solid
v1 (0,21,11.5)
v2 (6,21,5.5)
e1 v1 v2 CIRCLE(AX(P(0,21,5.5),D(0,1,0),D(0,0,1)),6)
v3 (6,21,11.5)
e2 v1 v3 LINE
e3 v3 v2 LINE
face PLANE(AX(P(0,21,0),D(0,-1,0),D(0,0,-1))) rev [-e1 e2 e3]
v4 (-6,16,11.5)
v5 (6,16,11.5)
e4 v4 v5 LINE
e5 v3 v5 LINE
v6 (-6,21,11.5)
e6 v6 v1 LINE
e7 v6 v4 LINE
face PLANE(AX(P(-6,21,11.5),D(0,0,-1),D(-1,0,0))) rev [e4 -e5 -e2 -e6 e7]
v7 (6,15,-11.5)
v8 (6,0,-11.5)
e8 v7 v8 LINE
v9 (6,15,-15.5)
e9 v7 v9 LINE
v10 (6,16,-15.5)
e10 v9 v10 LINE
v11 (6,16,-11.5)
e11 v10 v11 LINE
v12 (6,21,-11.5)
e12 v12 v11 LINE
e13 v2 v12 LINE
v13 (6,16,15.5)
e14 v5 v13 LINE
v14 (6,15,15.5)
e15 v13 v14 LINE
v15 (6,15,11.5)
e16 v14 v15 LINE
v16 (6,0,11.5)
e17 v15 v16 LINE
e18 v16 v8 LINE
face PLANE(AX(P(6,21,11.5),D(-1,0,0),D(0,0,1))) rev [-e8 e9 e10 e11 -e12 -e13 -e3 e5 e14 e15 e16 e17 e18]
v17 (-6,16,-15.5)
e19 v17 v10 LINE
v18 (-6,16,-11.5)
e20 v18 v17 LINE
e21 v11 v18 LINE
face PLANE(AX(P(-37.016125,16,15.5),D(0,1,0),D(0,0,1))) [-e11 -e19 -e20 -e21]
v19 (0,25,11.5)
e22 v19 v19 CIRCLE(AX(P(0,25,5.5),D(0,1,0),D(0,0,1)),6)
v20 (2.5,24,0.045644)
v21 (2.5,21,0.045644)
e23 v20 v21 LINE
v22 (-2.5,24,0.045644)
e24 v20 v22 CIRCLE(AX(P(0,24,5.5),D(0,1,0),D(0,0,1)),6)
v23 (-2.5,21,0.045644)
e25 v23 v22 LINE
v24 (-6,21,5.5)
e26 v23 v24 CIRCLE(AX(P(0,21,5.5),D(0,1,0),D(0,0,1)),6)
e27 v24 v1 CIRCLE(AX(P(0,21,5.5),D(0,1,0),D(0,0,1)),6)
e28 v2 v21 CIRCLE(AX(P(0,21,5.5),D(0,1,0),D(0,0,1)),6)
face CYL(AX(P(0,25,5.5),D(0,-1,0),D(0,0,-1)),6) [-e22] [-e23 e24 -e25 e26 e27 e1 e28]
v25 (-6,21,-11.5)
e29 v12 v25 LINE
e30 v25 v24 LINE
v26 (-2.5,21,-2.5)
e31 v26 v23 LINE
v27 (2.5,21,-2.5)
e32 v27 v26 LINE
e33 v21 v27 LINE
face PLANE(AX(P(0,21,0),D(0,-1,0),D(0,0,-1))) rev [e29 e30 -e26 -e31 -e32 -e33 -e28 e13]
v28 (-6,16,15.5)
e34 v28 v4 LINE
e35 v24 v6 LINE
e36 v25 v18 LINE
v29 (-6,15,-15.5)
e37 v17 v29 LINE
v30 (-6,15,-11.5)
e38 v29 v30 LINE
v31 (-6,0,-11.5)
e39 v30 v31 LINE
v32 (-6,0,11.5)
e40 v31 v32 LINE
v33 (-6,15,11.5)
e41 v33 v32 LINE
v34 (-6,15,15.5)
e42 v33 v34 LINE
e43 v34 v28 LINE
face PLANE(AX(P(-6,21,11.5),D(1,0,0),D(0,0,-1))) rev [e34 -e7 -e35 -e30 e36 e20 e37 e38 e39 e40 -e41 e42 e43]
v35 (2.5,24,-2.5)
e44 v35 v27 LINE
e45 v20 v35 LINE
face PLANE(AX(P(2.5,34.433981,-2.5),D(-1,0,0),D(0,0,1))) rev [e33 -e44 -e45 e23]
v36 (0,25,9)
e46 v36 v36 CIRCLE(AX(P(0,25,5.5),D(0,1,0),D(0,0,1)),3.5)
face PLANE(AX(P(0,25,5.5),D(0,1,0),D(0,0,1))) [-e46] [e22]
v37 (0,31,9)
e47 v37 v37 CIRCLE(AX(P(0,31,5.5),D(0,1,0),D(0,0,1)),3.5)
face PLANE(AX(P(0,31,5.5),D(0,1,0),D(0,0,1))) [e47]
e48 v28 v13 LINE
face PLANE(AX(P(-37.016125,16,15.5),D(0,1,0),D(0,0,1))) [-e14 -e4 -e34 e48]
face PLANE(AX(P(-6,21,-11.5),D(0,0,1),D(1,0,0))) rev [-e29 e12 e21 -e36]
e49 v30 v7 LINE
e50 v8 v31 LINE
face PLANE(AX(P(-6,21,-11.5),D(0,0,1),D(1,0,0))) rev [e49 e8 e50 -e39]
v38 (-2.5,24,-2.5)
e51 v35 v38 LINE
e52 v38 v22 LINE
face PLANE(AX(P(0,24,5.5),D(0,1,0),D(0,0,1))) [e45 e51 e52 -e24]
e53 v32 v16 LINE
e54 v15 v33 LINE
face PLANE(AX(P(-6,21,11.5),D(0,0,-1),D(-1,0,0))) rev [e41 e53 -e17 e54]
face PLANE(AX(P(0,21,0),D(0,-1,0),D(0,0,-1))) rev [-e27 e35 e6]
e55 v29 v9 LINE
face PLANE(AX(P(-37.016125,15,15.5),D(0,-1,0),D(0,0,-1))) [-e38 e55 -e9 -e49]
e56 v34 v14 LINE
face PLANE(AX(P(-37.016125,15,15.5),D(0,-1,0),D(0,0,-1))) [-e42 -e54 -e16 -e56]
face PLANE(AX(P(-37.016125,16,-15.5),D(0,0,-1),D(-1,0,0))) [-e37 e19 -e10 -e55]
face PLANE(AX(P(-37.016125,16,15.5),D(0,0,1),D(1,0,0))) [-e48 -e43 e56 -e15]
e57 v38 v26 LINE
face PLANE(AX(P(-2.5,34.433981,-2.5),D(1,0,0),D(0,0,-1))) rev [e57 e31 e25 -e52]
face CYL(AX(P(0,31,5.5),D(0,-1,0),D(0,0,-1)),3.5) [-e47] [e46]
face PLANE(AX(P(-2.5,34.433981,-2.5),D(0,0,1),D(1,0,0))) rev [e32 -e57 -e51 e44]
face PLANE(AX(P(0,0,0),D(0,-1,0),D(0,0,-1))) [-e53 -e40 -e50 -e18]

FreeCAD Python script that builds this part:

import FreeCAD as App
import Part
import Sketcher
from FreeCAD import Vector
Q = App.Units.Quantity

doc = App.newDocument("Part")
body = doc.addObject("PartDesign::Body", "Body")

sketch1 = body.newObject("Sketcher::SketchObject", "Sketch")
sketch1.AttachmentSupport = (doc.getObject("XZ_Plane"), [""])
sketch1.MapMode = "FlatFace"
sketch1.addGeometry(Part.LineSegment(Vector(-6, -12, 0), Vector(-6, 12, 0)), False)
sketch1.addGeometry(Part.LineSegment(Vector(-6, 12, 0), Vector(6, 12, 0)), False)
sketch1.addGeometry(Part.LineSegment(Vector(6, 12, 0), Vector(6, -12, 0)), False)
sketch1.addGeometry(Part.LineSegment(Vector(6, -12, 0), Vector(-6, -12, 0)), False)
sketch1.addConstraint(Sketcher.Constraint("Coincident", 0, 2, 1, 1))
sketch1.addConstraint(Sketcher.Constraint("Coincident", 1, 2, 2, 1))
sketch1.addConstraint(Sketcher.Constraint("Coincident", 2, 2, 3, 1))
sketch1.addConstraint(Sketcher.Constraint("Coincident", 3, 2, 0, 1))
sketch1.addConstraint(Sketcher.Constraint("Vertical", 0))
sketch1.addConstraint(Sketcher.Constraint("Horizontal", 1))
sketch1.addConstraint(Sketcher.Constraint("Vertical", 2))
sketch1.addConstraint(Sketcher.Constraint("Horizontal", 3))
sketch1.addConstraint(Sketcher.Constraint("Symmetric", 0, 2, 2, 2, -1, 1))
sketch1.addConstraint(Sketcher.Constraint("DistanceX", 1, 1, 1, 2, Q("12 mm")))
sketch1.addConstraint(Sketcher.Constraint("DistanceY", 0, 1, 0, 2, Q("23 mm")))
pad1 = body.newObject("PartDesign::Pad", "Pad")
pad1.Profile = sketch1
pad1.Length = 21
pad1.Reversed = True

sketch2 = body.newObject("Sketcher::SketchObject", "Sketch001")
sketch2.AttachmentSupport = (doc.getObject("YZ_Plane"), [""])
sketch2.MapMode = "FlatFace"
sketch2.AttachmentOffset = App.Placement(Vector(0, 0, 6), App.Rotation())
sketch2.addGeometry(Part.LineSegment(Vector(16, 15.5, 0), Vector(15, 15.5, 0)), False)
sketch2.addGeometry(Part.LineSegment(Vector(15, 15.5, 0), Vector(15, -15.5, 0)), False)
sketch2.addGeometry(Part.LineSegment(Vector(15, -15.5, 0), Vector(16, -15.5, 0)), False)
sketch2.addGeometry(Part.LineSegment(Vector(16, -15.5, 0), Vector(16, 15.5, 0)), False)
sketch2.addConstraint(Sketcher.Constraint("Coincident", 0, 2, 1, 1))
sketch2.addConstraint(Sketcher.Constraint("Coincident", 1, 2, 2, 1))
sketch2.addConstraint(Sketcher.Constraint("Coincident", 2, 2, 3, 1))
sketch2.addConstraint(Sketcher.Constraint("Coincident", 3, 2, 0, 1))
sketch2.addConstraint(Sketcher.Constraint("Horizontal", 0))
sketch2.addConstraint(Sketcher.Constraint("Vertical", 1))
sketch2.addConstraint(Sketcher.Constraint("Horizontal", 2))
sketch2.addConstraint(Sketcher.Constraint("Vertical", 3))
sketch2.addConstraint(Sketcher.Constraint("DistanceX", 0, 2, 0, 1, Q("1 mm")))
sketch2.addConstraint(Sketcher.Constraint("DistanceY", 1, 2, 1, 1, Q("31 mm")))
sketch2.addConstraint(Sketcher.Constraint("DistanceX", -1, 1, 0, 2, Q("15 mm")))
sketch2.addConstraint(Sketcher.Constraint("DistanceY", -1, 1, 0, 2, Q("15.5 mm")))
pad2 = body.newObject("PartDesign::Pad", "Pad001")
pad2.Profile = sketch2
pad2.Length = 12
pad2.Reversed = True

sketch3 = body.newObject("Sketcher::SketchObject", "Sketch002")
sketch3.AttachmentSupport = (doc.getObject("XZ_Plane"), [""])
sketch3.MapMode = "FlatFace"
sketch3.AttachmentOffset = App.Placement(Vector(0, 0, -21), App.Rotation())
sketch3.addGeometry(Part.Circle(Vector(0, 6, 0), Vector(0, 0, 1), 6), False)
sketch3.addConstraint(Sketcher.Constraint("PointOnObject", 0, 3, -2))
sketch3.addConstraint(Sketcher.Constraint("Diameter", 0, Q("12 mm")))
sketch3.addConstraint(Sketcher.Constraint("DistanceY", -1, 1, 0, 3, Q("5.5 mm")))
pad3 = body.newObject("PartDesign::Pad", "Pad002")
pad3.Profile = sketch3
pad3.Length = 4
pad3.Reversed = True

sketch4 = body.newObject("Sketcher::SketchObject", "Sketch003")
sketch4.AttachmentSupport = (doc.getObject("XZ_Plane"), [""])
sketch4.MapMode = "FlatFace"
sketch4.AttachmentOffset = App.Placement(Vector(0, 0, -21), App.Rotation())
sketch4.addGeometry(Part.LineSegment(Vector(-2, -2, 0), Vector(-2, 6, 0)), False)
sketch4.addGeometry(Part.LineSegment(Vector(-2, 6, 0), Vector(2, 6, 0)), False)
sketch4.addGeometry(Part.LineSegment(Vector(2, 6, 0), Vector(2, -2, 0)), False)
sketch4.addGeometry(Part.LineSegment(Vector(2, -2, 0), Vector(-2, -2, 0)), False)
sketch4.addConstraint(Sketcher.Constraint("Coincident", 0, 2, 1, 1))
sketch4.addConstraint(Sketcher.Constraint("Coincident", 1, 2, 2, 1))
sketch4.addConstraint(Sketcher.Constraint("Coincident", 2, 2, 3, 1))
sketch4.addConstraint(Sketcher.Constraint("Coincident", 3, 2, 0, 1))
sketch4.addConstraint(Sketcher.Constraint("Vertical", 0))
sketch4.addConstraint(Sketcher.Constraint("Horizontal", 1))
sketch4.addConstraint(Sketcher.Constraint("Vertical", 2))
sketch4.addConstraint(Sketcher.Constraint("Horizontal", 3))
sketch4.addConstraint(Sketcher.Constraint("DistanceX", 1, 1, 1, 2, Q("5 mm")))
sketch4.addConstraint(Sketcher.Constraint("DistanceY", 0, 1, 0, 2, Q("8 mm")))
sketch4.addConstraint(Sketcher.Constraint("DistanceX", 0, 2, -1, 1, Q("2.5 mm")))
sketch4.addConstraint(Sketcher.Constraint("DistanceY", -1, 1, 0, 2, Q("5.5 mm")))
pad4 = body.newObject("PartDesign::Pad", "Pad003")
pad4.Profile = sketch4
pad4.Length = 3
pad4.Reversed = True

sketch5 = body.newObject("Sketcher::SketchObject", "Sketch004")
sketch5.AttachmentSupport = (doc.getObject("XZ_Plane"), [""])
sketch5.MapMode = "FlatFace"
sketch5.AttachmentOffset = App.Placement(Vector(0, 0, -25), App.Rotation())
sketch5.addGeometry(Part.Circle(Vector(0, 5.5, 0), Vector(0, 0, 1), 3.5), False)
sketch5.addConstraint(Sketcher.Constraint("PointOnObject", 0, 3, -2))
sketch5.addConstraint(Sketcher.Constraint("Diameter", 0, Q("7 mm")))
sketch5.addConstraint(Sketcher.Constraint("DistanceY", -1, 1, 0, 3, Q("5.5 mm")))
pad5 = body.newObject("PartDesign::Pad", "Pad004")
pad5.Profile = sketch5
pad5.Length = 6
pad5.Reversed = True

doc.recompute()
